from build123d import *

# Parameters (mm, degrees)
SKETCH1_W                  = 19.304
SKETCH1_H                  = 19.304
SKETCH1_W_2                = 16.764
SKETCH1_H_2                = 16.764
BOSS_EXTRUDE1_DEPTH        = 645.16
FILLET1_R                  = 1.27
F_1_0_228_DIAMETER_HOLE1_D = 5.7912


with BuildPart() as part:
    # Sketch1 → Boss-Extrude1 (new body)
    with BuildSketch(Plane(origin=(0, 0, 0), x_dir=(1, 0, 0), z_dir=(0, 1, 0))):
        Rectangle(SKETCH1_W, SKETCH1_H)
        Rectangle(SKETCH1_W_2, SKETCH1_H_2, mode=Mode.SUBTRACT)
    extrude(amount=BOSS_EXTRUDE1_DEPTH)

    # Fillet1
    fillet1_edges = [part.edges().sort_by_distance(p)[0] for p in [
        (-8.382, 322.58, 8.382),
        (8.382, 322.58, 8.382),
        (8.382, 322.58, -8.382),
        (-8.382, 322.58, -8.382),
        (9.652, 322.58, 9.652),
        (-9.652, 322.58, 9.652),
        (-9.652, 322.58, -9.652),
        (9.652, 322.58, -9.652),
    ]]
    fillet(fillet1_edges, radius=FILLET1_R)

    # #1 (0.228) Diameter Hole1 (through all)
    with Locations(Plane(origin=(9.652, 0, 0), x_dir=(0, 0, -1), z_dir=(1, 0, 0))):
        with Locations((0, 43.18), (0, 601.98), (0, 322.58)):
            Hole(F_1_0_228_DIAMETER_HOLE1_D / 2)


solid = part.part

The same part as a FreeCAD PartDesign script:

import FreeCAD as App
import Part
import Sketcher
Q = App.Units.Quantity


def edges_at(feature, points):
    """Names of the edges that pass closest to the given points."""
    edges = feature.Shape.Edges
    near = lambda p: min(range(len(edges)), key=lambda i: edges[i].distToShape(Part.Vertex(*p))[0])
    return sorted({f"Edge{near(p) + 1}" for p in points})

doc = App.newDocument("Part")
params = doc.addObject("Spreadsheet::Sheet", "Params")
for row, (alias, value) in enumerate([
    ("sketch1_width", "0.76 in"),
    ("sketch1_width2", "0.66 in"),
    ("pad1_length", "25.4 in"),
    ("fillet_radius", "0.05 in"),
    ("sketch2_diameter", "0.228 in"),
    ("hole_diameter", "0.228 in"),
], start=1):
    params.set(f"A{row}", alias)
    params.set(f"B{row}", "=" + value)
    params.setAlias(f"B{row}", alias)

body = doc.addObject("PartDesign::Body", "Body")

# Sketch on XZ plane
sketch1 = body.newObject("Sketcher::SketchObject", "Sketch")
sketch1.AttachmentSupport = (doc.getObject("XZ_Plane"), [""])
sketch1.MapMode = "FlatFace"
sketch1.addGeometry([
    Part.LineSegment(App.Vector(-9.652, -9.652, 0), App.Vector(-9.652, 9.652, 0)),  # 0
    Part.LineSegment(App.Vector(-9.652, 9.652, 0), App.Vector(9.652, 9.652, 0)),  # 1
    Part.LineSegment(App.Vector(9.652, 9.652, 0), App.Vector(9.652, -9.652, 0)),  # 2
    Part.LineSegment(App.Vector(9.652, -9.652, 0), App.Vector(-9.652, -9.652, 0)),  # 3
    Part.LineSegment(App.Vector(8.382, 8.382, 0), App.Vector(-8.382, 8.382, 0)),  # 4
    Part.LineSegment(App.Vector(-8.382, 8.382, 0), App.Vector(-8.382, -8.382, 0)),  # 5
    Part.LineSegment(App.Vector(-8.382, -8.382, 0), App.Vector(8.382, -8.382, 0)),  # 6
    Part.LineSegment(App.Vector(8.382, -8.382, 0), App.Vector(8.382, 8.382, 0)),  # 7
], False)
sketch1.addConstraint([
    Sketcher.Constraint("Coincident", 0, 2, 1, 1),
    Sketcher.Constraint("Coincident", 1, 2, 2, 1),
    Sketcher.Constraint("Coincident", 2, 2, 3, 1),
    Sketcher.Constraint("Coincident", 3, 2, 0, 1),
    Sketcher.Constraint("Coincident", 4, 2, 5, 1),
    Sketcher.Constraint("Coincident", 5, 2, 6, 1),
    Sketcher.Constraint("Coincident", 6, 2, 7, 1),
    Sketcher.Constraint("Coincident", 7, 2, 4, 1),
    Sketcher.Constraint("Vertical", 0),
    Sketcher.Constraint("Horizontal", 1),
    Sketcher.Constraint("Vertical", 2),
    Sketcher.Constraint("Horizontal", 3),
    Sketcher.Constraint("Horizontal", 4),
    Sketcher.Constraint("Vertical", 5),
    Sketcher.Constraint("Horizontal", 6),
    Sketcher.Constraint("Vertical", 7),
    Sketcher.Constraint("Symmetric", 0, 2, 2, 2, -1, 1),
    Sketcher.Constraint("Symmetric", 4, 2, 6, 2, -1, 1),
    Sketcher.Constraint("Equal", 3, 0),
    Sketcher.Constraint("Equal", 6, 5),
    Sketcher.Constraint("DistanceX", 1, 1, 1, 2, Q("0.76 in")),
    Sketcher.Constraint("DistanceX", 4, 2, 4, 1, Q("0.66 in")),
])
sketch1.setExpression("Constraints[20]", "Params.sketch1_width")
sketch1.setExpression("Constraints[21]", "Params.sketch1_width2")
pad1 = body.newObject("PartDesign::Pad", "Pad")
pad1.Profile = sketch1
pad1.setExpression("Length", "Params.pad1_length")
pad1.Reversed = True
doc.recompute()

fillet = body.newObject("PartDesign::Fillet", "Fillet")
fillet.Base = (pad1, edges_at(pad1, [
    (-8.382, 322.58, 8.382),
    (8.382, 322.58, 8.382),
    (8.382, 322.58, -8.382),
    (-8.382, 322.58, -8.382),
    (9.652, 322.58, 9.652),
    (-9.652, 322.58, 9.652),
    (-9.652, 322.58, -9.652),
    (9.652, 322.58, -9.652),
]))
fillet.setExpression("Radius", "Params.fillet_radius")

# Sketch on YZ plane
sketch2 = body.newObject("Sketcher::SketchObject", "Sketch001")
sketch2.AttachmentSupport = (doc.getObject("YZ_Plane"), [""])
sketch2.MapMode = "FlatFace"
sketch2.AttachmentOffset = App.Placement(App.Vector(0, 0, 0.38 * 25.4), App.Rotation())
sketch2.addGeometry([
    Part.Circle(App.Vector(43.18, 0, 0), App.Vector(0, 0, 1), 2.8956),
    Part.Circle(App.Vector(601.98, 0, 0), App.Vector(0, 0, 1), 2.8956),
    Part.Circle(App.Vector(322.58, 0, 0), App.Vector(0, 0, 1), 2.8956),
], False)
sketch2.addConstraint([
    Sketcher.Constraint("Equal", 0, 1),
    Sketcher.Constraint("Equal", 1, 2),
    Sketcher.Constraint("PointOnObject", 0, 3, -1),
    Sketcher.Constraint("PointOnObject", 1, 3, -1),
    Sketcher.Constraint("PointOnObject", 2, 3, -1),
    Sketcher.Constraint("Diameter", 0, Q("0.228 in")),
    Sketcher.Constraint("DistanceX", 0, 3, 1, 3, Q("22 in")),
    Sketcher.Constraint("DistanceX", 0, 3, 2, 3, Q("11 in")),
    Sketcher.Constraint("DistanceX", -1, 1, 0, 3, Q("1.7 in")),
])
sketch2.setExpression("Constraints[5]", "Params.sketch2_diameter")
doc.recompute()
hole = body.newObject("PartDesign::Hole", "Hole")
hole.Profile = sketch2
hole.ThreadType = "None"
hole.setExpression("Diameter", "Params.hole_diameter")
hole.DepthType = "ThroughAll"

doc.recompute()
